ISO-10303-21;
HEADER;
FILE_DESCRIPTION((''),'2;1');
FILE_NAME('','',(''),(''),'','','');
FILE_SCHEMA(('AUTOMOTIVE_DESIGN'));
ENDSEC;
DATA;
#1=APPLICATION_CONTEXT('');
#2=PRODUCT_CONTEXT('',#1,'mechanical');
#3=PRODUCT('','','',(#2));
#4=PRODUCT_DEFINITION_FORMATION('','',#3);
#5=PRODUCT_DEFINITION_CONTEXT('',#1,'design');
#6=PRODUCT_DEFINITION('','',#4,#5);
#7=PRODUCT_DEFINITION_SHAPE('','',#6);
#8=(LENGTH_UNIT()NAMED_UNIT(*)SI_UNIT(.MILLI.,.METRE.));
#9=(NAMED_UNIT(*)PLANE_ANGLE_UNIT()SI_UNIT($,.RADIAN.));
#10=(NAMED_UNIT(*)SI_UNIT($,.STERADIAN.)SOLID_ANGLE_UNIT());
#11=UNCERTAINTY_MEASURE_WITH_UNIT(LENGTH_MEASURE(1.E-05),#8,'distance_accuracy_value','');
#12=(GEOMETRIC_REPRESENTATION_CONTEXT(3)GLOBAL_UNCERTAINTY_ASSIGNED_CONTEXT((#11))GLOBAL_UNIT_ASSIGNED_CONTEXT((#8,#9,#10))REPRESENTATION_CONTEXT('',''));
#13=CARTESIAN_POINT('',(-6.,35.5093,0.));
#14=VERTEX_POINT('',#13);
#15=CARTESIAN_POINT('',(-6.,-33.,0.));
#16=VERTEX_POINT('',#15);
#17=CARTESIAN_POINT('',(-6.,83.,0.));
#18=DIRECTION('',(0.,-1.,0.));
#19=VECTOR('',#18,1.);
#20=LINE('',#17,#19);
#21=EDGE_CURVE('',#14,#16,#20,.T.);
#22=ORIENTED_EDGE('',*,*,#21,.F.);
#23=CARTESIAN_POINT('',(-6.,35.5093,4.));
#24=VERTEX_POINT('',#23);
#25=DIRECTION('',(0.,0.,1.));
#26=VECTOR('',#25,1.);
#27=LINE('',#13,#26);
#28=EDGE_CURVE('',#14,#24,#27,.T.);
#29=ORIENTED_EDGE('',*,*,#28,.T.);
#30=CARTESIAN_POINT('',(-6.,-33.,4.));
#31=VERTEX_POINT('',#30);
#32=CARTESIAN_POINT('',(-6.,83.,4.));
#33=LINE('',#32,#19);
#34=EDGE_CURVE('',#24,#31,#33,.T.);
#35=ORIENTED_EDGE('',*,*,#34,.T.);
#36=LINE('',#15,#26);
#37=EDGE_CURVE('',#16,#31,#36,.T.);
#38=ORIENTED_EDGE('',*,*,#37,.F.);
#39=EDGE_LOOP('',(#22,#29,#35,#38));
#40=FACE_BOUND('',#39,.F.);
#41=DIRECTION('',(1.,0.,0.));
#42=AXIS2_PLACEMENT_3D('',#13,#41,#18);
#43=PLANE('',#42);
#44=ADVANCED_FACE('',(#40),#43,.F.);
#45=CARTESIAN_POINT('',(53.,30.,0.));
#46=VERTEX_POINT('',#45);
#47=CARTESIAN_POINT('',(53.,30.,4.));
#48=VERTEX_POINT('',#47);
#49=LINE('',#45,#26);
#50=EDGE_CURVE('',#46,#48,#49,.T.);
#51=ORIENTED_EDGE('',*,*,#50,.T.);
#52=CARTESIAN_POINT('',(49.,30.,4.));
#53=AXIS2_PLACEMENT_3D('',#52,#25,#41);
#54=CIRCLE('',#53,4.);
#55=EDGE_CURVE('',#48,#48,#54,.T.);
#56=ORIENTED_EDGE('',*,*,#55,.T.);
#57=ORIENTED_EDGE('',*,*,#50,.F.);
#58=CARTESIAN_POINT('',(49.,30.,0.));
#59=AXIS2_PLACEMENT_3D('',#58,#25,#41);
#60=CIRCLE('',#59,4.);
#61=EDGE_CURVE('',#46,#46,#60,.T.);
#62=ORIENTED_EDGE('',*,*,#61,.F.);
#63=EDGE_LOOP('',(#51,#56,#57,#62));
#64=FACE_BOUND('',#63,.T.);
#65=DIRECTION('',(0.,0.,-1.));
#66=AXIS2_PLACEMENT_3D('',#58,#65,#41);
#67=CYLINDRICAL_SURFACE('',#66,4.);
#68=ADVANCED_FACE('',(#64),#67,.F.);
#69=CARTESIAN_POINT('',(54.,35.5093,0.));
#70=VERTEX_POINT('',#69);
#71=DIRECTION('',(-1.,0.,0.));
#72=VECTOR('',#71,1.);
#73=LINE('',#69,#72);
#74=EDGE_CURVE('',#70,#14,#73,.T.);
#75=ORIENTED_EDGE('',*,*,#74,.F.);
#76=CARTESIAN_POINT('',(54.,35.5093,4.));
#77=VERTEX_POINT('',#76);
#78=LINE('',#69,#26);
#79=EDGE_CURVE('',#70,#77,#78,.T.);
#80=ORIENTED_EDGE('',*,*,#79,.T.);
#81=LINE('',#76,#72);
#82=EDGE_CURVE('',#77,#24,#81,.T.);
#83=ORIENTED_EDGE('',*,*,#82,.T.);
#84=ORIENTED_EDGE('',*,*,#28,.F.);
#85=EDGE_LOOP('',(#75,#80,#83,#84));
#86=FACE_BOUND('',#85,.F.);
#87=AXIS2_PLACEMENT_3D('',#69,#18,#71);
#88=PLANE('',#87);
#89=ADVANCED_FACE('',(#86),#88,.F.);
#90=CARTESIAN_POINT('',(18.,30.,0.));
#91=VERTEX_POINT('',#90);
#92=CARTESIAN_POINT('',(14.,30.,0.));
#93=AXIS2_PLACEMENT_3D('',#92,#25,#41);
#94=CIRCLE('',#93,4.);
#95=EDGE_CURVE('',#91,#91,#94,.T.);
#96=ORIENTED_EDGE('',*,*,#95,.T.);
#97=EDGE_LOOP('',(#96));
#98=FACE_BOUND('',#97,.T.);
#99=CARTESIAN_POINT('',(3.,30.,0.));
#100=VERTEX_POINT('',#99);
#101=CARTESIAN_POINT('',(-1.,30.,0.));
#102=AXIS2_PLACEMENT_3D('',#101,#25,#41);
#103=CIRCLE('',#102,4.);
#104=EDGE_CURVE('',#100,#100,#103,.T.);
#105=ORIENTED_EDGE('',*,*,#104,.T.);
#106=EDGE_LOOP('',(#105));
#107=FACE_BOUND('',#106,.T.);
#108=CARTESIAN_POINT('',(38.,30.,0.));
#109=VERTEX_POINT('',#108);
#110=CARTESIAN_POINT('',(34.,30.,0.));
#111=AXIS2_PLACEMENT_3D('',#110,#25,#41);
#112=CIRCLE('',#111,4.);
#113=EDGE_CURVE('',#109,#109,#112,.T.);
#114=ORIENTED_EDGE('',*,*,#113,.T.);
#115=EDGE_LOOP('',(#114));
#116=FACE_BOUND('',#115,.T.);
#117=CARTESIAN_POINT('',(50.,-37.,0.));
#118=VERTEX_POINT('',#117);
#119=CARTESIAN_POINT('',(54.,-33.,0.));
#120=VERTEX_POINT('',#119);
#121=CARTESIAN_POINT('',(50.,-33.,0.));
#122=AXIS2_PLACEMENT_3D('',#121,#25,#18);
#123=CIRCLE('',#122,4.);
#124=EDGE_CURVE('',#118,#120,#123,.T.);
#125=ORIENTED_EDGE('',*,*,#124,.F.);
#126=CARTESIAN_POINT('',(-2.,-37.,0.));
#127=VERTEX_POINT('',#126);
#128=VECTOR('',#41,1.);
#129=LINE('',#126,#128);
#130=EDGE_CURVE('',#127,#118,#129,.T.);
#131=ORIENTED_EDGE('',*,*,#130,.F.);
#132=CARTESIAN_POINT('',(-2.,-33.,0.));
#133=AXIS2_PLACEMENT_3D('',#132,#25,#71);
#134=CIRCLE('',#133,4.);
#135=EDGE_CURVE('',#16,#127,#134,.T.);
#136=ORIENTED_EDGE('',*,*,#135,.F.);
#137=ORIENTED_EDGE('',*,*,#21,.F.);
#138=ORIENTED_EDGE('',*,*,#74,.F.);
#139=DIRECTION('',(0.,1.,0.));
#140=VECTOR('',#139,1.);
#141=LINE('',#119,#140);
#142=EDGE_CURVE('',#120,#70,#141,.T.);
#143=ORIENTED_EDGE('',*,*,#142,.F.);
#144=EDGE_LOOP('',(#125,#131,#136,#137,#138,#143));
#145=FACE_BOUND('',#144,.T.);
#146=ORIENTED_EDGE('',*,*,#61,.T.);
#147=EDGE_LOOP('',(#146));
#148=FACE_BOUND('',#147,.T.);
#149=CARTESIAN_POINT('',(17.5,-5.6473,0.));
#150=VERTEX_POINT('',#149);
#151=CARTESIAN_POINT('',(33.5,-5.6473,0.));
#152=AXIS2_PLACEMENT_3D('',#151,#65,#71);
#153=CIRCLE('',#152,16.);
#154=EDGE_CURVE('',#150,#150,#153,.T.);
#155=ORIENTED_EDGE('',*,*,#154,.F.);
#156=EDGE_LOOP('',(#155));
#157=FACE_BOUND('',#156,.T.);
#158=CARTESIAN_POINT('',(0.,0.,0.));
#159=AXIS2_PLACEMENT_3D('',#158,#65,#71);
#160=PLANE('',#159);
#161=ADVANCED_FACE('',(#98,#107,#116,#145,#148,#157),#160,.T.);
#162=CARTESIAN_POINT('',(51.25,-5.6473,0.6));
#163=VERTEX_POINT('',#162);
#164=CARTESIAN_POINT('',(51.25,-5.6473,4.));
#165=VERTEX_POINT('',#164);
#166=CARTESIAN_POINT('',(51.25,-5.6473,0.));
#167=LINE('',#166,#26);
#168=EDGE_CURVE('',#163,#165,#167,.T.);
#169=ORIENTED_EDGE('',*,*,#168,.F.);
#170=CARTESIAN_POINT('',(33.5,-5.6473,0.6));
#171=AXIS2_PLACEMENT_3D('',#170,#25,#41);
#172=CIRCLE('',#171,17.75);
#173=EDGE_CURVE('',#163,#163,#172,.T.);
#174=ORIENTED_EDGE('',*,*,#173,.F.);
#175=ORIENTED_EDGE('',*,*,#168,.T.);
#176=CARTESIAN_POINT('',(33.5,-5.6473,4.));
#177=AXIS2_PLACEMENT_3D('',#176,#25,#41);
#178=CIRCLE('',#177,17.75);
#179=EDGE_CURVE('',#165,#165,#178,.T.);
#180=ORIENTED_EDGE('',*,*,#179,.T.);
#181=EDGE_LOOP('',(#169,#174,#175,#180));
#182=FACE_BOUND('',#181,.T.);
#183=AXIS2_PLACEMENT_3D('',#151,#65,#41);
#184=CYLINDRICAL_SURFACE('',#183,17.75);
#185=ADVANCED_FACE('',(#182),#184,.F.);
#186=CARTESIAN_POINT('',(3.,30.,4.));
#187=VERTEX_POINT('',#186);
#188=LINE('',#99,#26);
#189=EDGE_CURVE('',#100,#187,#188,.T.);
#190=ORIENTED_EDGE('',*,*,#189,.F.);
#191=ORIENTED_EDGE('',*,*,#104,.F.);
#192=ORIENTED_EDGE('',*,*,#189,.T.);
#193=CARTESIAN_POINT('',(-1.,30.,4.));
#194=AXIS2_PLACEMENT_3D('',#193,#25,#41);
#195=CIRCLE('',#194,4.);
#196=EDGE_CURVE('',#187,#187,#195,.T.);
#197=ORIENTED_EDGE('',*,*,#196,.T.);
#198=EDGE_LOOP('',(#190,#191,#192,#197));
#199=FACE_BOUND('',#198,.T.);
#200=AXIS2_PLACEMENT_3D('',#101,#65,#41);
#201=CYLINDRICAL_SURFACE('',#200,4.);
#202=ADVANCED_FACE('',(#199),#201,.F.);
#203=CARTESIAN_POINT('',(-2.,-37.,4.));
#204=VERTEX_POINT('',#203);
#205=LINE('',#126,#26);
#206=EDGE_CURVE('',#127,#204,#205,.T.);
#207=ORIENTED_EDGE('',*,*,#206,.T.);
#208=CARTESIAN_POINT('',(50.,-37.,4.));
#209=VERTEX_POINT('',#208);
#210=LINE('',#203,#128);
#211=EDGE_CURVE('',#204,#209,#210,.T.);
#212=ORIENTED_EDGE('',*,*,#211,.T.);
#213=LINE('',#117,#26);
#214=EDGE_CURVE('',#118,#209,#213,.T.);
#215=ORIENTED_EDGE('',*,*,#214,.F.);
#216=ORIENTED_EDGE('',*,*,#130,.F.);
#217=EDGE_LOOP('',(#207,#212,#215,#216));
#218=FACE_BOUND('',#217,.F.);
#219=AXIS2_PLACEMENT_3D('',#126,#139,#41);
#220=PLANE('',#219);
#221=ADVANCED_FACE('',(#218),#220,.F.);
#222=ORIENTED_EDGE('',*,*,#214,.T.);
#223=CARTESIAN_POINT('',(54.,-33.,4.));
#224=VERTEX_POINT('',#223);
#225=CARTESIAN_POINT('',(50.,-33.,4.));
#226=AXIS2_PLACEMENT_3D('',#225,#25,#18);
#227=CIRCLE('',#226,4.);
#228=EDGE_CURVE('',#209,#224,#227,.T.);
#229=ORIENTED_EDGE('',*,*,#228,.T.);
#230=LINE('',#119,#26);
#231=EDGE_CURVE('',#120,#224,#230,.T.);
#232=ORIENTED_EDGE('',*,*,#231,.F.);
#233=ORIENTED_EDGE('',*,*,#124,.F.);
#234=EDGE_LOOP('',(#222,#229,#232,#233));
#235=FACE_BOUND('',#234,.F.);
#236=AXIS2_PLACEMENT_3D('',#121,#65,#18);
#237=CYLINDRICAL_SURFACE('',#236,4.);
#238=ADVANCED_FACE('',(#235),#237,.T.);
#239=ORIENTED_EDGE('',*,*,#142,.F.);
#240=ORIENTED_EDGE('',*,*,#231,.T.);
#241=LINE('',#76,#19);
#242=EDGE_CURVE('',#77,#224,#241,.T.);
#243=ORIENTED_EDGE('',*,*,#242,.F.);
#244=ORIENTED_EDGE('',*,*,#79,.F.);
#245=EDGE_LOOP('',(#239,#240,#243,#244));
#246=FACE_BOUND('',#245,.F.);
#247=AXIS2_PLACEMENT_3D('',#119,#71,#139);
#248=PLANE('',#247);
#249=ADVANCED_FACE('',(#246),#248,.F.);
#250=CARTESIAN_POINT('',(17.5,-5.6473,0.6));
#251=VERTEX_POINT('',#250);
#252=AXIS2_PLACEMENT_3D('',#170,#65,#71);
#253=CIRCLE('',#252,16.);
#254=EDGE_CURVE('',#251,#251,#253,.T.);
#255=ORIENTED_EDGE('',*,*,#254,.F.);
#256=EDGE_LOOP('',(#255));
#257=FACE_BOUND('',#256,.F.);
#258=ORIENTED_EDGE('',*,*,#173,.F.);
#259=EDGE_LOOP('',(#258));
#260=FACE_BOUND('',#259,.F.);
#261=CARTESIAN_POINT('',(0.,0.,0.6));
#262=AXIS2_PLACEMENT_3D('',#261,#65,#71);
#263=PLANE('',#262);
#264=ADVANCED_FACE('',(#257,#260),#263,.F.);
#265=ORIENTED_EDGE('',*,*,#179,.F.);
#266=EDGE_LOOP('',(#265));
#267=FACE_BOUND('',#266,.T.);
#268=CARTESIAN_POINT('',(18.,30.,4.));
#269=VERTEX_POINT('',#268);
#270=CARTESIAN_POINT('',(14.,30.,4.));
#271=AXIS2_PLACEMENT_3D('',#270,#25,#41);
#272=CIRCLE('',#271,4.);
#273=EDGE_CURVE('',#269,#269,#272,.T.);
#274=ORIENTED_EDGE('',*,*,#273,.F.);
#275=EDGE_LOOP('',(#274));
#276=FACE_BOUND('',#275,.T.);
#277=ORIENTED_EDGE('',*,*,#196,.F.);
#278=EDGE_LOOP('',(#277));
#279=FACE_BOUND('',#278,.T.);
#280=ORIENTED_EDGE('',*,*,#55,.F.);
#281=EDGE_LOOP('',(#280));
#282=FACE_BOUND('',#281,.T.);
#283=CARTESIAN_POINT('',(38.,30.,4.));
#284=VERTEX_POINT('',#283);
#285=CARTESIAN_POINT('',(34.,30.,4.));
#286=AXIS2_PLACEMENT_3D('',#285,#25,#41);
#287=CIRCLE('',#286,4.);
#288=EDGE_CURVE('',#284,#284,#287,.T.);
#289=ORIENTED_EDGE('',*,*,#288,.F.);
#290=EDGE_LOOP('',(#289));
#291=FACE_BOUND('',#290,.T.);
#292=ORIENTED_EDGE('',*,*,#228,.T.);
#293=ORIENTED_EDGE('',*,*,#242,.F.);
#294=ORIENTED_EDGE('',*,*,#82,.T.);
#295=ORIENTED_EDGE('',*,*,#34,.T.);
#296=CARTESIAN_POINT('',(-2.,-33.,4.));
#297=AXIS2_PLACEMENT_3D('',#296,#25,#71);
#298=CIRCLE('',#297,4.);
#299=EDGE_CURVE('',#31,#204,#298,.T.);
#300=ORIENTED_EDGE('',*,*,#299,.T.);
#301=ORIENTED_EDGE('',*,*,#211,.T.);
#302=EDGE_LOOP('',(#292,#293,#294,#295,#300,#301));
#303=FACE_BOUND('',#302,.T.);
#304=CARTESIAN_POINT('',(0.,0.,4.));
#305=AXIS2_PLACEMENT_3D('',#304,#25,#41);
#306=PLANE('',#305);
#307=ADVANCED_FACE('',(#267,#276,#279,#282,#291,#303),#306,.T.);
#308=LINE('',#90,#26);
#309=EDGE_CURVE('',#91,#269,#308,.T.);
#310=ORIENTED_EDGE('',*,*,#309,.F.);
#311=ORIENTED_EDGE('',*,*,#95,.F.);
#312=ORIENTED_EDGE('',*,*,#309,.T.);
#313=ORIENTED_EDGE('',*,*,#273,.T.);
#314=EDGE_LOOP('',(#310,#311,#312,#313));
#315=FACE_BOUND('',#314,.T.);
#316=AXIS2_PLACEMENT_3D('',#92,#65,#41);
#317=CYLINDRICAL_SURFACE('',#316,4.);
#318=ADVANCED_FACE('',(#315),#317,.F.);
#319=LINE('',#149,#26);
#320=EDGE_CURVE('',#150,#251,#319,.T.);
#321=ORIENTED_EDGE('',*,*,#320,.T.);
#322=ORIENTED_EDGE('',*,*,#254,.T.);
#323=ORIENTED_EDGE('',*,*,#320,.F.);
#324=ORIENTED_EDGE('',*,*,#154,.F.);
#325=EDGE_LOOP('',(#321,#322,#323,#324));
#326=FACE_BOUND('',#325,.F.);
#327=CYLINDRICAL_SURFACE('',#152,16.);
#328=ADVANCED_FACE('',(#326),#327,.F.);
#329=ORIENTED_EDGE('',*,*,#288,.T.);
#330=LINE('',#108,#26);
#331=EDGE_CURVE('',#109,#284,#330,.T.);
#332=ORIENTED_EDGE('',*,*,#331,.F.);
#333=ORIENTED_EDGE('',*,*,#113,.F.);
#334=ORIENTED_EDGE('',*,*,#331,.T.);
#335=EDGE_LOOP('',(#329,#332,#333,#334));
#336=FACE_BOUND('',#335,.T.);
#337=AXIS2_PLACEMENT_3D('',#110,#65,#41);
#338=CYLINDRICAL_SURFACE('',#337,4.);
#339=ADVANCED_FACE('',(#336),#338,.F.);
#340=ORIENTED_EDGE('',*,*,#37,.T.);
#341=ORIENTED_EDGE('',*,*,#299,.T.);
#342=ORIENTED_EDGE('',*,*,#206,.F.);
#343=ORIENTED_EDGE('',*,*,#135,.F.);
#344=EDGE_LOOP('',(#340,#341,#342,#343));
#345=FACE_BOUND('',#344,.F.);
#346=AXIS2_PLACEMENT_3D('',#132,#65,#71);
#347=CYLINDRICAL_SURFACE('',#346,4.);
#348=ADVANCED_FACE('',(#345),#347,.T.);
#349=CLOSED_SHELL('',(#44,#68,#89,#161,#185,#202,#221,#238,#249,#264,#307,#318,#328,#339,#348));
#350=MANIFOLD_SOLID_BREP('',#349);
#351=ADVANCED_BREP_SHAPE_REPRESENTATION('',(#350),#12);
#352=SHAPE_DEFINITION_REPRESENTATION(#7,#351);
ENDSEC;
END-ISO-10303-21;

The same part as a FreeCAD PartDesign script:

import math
import FreeCAD as App
import Part
import Sketcher
Q = App.Units.Quantity

doc = App.newDocument("Part")
body = doc.addObject("PartDesign::Body", "Body")

# Sketch on XY plane
sketch1 = body.newObject("Sketcher::SketchObject", "Sketch")
sketch1.AttachmentSupport = (doc.getObject("XY_Plane"), [""])
sketch1.MapMode = "FlatFace"
sketch1.addGeometry([
    Part.LineSegment(App.Vector(54, -33, 0), App.Vector(54, 35.5093, 0)),  # 0
    Part.LineSegment(App.Vector(54, 35.5093, 0), App.Vector(-6, 35.5093, 0)),  # 1
    Part.LineSegment(App.Vector(-6, 35.5093, 0), App.Vector(-6, -33, 0)),  # 2
    Part.ArcOfCircle(Part.Circle(App.Vector(-2, -33, 0), App.Vector(0, 0, 1), 4), math.radians(180), math.radians(270)),  # 3
    Part.LineSegment(App.Vector(-2, -37, 0), App.Vector(50, -37, 0)),  # 4
    Part.ArcOfCircle(Part.Circle(App.Vector(50, -33, 0), App.Vector(0, 0, 1), 4), math.radians(-90), math.radians(0)),  # 5
    Part.Circle(App.Vector(-1, 30, 0), App.Vector(0, 0, 1), 4),  # 6
    Part.Circle(App.Vector(14, 30, 0), App.Vector(0, 0, 1), 4),  # 7
    Part.Circle(App.Vector(34, 30, 0), App.Vector(0, 0, 1), 4),  # 8
    Part.Circle(App.Vector(49, 30, 0), App.Vector(0, 0, 1), 4),  # 9
    Part.Circle(App.Vector(33.5, -5.6473, 0), App.Vector(0, 0, 1), 17.75),  # 10
], False)
sketch1.addConstraint([
    Sketcher.Constraint("Coincident", 0, 2, 1, 1),
    Sketcher.Constraint("Coincident", 1, 2, 2, 1),
    Sketcher.Constraint("Tangent", 2, 2, 3, 1),
    Sketcher.Constraint("Tangent", 3, 2, 4, 1),
    Sketcher.Constraint("Tangent", 4, 2, 5, 1),
    Sketcher.Constraint("Tangent", 5, 2, 0, 1),
    Sketcher.Constraint("Vertical", 0),
    Sketcher.Constraint("Horizontal", 1),
    Sketcher.Constraint("Vertical", 2),
    Sketcher.Constraint("Horizontal", 4),
    Sketcher.Constraint("Equal", 3, 5),
    Sketcher.Constraint("Equal", 5, 6),
    Sketcher.Constraint("Equal", 6, 7),
    Sketcher.Constraint("Equal", 7, 8),
    Sketcher.Constraint("Equal", 8, 9),
    Sketcher.Constraint("Horizontal", 6, 3, 7, 3),
    Sketcher.Constraint("Horizontal", 7, 3, 8, 3),
    Sketcher.Constraint("Horizontal", 8, 3, 9, 3),
    Sketcher.Constraint("Diameter", 10, Q("35.5 mm")),
    Sketcher.Constraint("Diameter", 6, Q("8 mm")),
    Sketcher.Constraint("DistanceX", 3, 3, 10, 3, Q("35.5 mm")),
    Sketcher.Constraint("DistanceX", 1, 2, 1, 1, Q("60 mm")),
    Sketcher.Constraint("DistanceX", 3, 3, -1, 1, Q("2 mm")),
    Sketcher.Constraint("DistanceY", 3, 3, -1, 1, Q("33 mm")),
    Sketcher.Constraint("DistanceX", 6, 3, -1, 1, Q("1 mm")),
    Sketcher.Constraint("DistanceY", -1, 1, 6, 3, Q("30 mm")),
    Sketcher.Constraint("DistanceX", -1, 1, 7, 3, Q("14 mm")),
    Sketcher.Constraint("DistanceX", -1, 1, 8, 3, Q("34 mm")),
    Sketcher.Constraint("DistanceX", -1, 1, 9, 3, Q("49 mm")),
    Sketcher.Constraint("DistanceY", 0, 1, 0, 2, Q("68.5093 mm")),
    Sketcher.Constraint("DistanceY", 10, 3, -1, 1, Q("5.6473 mm")),
])
pad1 = body.newObject("PartDesign::Pad", "Pad")
pad1.Profile = sketch1
pad1.Length = 4

# Sketch on XY plane
sketch2 = body.newObject("Sketcher::SketchObject", "Sketch001")
sketch2.AttachmentSupport = (doc.getObject("XY_Plane"), [""])
sketch2.MapMode = "FlatFace"
sketch2.addGeometry([
    Part.Circle(App.Vector(33.5, -5.6473, 0), App.Vector(0, 0, 1), 17.75),
    Part.Circle(App.Vector(33.5, -5.6473, 0), App.Vector(0, 0, 1), 16),
], False)
sketch2.addConstraint([
    Sketcher.Constraint("Coincident", 1, 3, 0, 3),
    Sketcher.Constraint("Diameter", 1, Q("32 mm")),
    Sketcher.Constraint("Diameter", 0, Q("35.5 mm")),
    Sketcher.Constraint("DistanceX", -1, 1, 0, 3, Q("33.5 mm")),
    Sketcher.Constraint("DistanceY", 0, 3, -1, 1, Q("5.6473 mm")),
])
pad2 = body.newObject("PartDesign::Pad", "Pad001")
pad2.Profile = sketch2
pad2.Length = 0.6

doc.recompute()
